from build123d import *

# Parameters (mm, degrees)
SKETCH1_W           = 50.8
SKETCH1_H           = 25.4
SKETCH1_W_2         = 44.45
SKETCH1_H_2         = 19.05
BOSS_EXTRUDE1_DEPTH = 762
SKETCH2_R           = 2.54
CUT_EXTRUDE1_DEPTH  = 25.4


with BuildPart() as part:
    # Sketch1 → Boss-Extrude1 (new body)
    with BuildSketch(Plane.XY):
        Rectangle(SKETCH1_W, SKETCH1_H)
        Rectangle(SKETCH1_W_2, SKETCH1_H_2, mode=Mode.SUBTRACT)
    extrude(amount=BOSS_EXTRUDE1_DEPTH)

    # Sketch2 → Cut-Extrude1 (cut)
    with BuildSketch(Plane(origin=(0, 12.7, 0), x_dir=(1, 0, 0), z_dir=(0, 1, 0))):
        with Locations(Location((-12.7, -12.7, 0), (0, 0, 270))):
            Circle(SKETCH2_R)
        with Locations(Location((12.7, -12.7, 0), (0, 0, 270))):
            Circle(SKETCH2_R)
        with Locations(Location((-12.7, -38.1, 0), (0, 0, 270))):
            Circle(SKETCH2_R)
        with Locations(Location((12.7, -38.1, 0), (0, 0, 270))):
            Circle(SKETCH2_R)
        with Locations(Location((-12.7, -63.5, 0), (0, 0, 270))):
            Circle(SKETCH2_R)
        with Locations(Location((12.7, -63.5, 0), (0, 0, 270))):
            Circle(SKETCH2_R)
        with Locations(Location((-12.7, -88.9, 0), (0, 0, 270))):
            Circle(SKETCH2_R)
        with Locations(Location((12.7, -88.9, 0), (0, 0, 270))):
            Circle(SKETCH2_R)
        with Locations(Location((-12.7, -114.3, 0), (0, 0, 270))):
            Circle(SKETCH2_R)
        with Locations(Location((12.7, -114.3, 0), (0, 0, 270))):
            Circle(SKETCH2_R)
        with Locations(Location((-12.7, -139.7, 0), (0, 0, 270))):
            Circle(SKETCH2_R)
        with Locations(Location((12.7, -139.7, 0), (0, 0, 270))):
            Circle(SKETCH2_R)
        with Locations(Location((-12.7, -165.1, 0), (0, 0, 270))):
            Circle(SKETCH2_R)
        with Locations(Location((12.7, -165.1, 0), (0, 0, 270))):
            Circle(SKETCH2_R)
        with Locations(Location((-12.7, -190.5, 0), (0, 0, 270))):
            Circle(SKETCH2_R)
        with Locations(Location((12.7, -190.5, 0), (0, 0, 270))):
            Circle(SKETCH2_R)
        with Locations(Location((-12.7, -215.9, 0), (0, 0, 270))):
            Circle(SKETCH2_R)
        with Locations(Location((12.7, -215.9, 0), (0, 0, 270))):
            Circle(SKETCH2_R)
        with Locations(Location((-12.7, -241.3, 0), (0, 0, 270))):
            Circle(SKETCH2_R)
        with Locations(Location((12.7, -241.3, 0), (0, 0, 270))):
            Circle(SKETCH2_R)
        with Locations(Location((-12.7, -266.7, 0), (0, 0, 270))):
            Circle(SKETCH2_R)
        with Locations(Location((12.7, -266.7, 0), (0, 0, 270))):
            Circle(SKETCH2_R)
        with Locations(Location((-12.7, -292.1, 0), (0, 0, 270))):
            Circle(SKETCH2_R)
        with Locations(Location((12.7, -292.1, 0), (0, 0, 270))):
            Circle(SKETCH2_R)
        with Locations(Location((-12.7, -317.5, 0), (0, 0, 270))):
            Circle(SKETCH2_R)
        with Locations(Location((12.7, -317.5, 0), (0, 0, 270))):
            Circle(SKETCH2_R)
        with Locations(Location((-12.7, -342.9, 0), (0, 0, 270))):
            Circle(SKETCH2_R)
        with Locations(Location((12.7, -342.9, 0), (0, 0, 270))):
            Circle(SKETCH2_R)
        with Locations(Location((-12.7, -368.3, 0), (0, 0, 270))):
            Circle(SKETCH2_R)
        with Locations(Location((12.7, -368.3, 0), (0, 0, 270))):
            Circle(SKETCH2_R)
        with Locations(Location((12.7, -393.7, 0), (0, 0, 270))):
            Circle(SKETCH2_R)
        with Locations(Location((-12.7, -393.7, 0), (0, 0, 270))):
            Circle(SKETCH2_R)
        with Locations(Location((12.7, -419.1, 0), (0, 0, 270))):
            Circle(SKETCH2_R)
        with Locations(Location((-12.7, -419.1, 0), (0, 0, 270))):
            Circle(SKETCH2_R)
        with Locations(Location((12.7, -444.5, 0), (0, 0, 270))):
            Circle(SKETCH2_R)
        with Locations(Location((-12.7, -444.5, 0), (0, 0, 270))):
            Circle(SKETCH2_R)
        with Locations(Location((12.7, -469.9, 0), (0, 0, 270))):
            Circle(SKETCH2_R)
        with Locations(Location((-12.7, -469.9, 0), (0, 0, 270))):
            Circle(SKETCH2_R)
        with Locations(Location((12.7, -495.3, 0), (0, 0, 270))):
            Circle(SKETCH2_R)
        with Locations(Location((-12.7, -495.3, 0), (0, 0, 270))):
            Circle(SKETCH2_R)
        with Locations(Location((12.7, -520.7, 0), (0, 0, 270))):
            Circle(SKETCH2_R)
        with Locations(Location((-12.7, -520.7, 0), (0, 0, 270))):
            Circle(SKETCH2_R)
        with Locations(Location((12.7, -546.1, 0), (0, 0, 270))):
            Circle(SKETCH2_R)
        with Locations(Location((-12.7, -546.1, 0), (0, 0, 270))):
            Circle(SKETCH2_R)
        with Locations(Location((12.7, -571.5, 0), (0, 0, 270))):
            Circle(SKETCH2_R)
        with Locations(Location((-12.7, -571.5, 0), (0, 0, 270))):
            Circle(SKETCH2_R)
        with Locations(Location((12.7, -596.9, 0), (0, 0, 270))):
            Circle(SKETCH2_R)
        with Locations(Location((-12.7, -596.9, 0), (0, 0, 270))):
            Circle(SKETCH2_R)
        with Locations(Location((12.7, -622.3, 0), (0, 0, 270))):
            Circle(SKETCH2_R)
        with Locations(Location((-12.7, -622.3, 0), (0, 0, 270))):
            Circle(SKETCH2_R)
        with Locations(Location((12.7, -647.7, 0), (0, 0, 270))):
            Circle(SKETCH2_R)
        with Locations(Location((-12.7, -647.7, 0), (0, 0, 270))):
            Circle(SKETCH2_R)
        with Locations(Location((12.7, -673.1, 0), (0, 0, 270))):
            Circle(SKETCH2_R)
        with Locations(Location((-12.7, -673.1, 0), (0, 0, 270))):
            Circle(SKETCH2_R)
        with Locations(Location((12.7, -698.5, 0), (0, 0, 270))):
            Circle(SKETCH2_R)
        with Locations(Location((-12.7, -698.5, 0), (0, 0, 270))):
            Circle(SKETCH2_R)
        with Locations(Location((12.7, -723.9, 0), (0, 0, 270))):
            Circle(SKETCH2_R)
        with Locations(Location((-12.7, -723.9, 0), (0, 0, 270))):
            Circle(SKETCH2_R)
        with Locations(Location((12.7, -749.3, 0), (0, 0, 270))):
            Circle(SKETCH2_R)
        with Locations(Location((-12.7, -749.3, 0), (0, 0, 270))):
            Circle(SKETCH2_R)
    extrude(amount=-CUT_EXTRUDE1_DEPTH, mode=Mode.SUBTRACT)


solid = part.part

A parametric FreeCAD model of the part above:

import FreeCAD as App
import Part
import Sketcher

V = App.Vector
Q = App.Units.Quantity

doc = App.newDocument("Part")
body = doc.addObject("PartDesign::Body", "Body")

sketch1 = body.newObject("Sketcher::SketchObject", "Sketch")
sketch1.AttachmentSupport = (doc.getObject("XY_Plane"), [""])
sketch1.MapMode = "FlatFace"
sketch1.addGeometry([
    Part.LineSegment(V(-25, 13, 0), V(-25, -13, 0)),
    Part.LineSegment(V(-25, -13, 0), V(25, -13, 0)),
    Part.LineSegment(V(25, -13, 0), V(25, 13, 0)),
    Part.LineSegment(V(25, 13, 0), V(-25, 13, 0)),
    Part.LineSegment(V(22, -10, 0), V(-22, -10, 0)),
    Part.LineSegment(V(-22, -10, 0), V(-22, 10, 0)),
    Part.LineSegment(V(-22, 10, 0), V(22, 10, 0)),
    Part.LineSegment(V(22, 10, 0), V(22, -10, 0)),
], False)
sketch1.addConstraint([
    Sketcher.Constraint("Coincident", 0, 2, 1, 1),
    Sketcher.Constraint("Coincident", 1, 2, 2, 1),
    Sketcher.Constraint("Coincident", 2, 2, 3, 1),
    Sketcher.Constraint("Coincident", 3, 2, 0, 1),
    Sketcher.Constraint("Coincident", 4, 2, 5, 1),
    Sketcher.Constraint("Coincident", 5, 2, 6, 1),
    Sketcher.Constraint("Coincident", 6, 2, 7, 1),
    Sketcher.Constraint("Coincident", 7, 2, 4, 1),
    Sketcher.Constraint("Vertical", 0),
    Sketcher.Constraint("Horizontal", 1),
    Sketcher.Constraint("Vertical", 2),
    Sketcher.Constraint("Horizontal", 3),
    Sketcher.Constraint("Horizontal", 4),
    Sketcher.Constraint("Vertical", 5),
    Sketcher.Constraint("Horizontal", 6),
    Sketcher.Constraint("Vertical", 7),
    Sketcher.Constraint("Symmetric", 0, 2, 2, 2, -1, 1),
    Sketcher.Constraint("Symmetric", 4, 2, 6, 2, -1, 1),
    Sketcher.Constraint("DistanceX", 1, 1, 1, 2, Q("2 in")),
    Sketcher.Constraint("DistanceY", 0, 2, 0, 1, Q("1 in")),
    Sketcher.Constraint("DistanceX", 4, 2, 4, 1, Q("1.75 in")),
    Sketcher.Constraint("DistanceY", 5, 1, 5, 2, Q("0.75 in")),
])
pad1 = body.newObject("PartDesign::Pad", "Pad")
pad1.Profile = sketch1
pad1.Length = Q("30 in")

sketch2 = body.newObject("Sketcher::SketchObject", "Sketch001")
sketch2.AttachmentSupport = (doc.getObject("XZ_Plane"), [""])
sketch2.MapMode = "FlatFace"
sketch2.AttachmentOffset = App.Placement(V(0, 0, -0.5 * 25.4), App.Rotation())
sketch2.addGeometry([
    Part.Circle(V(-12.7, 12.7, 0), V(0, 0, 1), 2.5),
    Part.Circle(V(12.7, 12.7, 0), V(0, 0, 1), 2.5),
    Part.Circle(V(-12.7, 38.1, 0), V(0, 0, 1), 2.5),
    Part.Circle(V(12.7, 38.1, 0), V(0, 0, 1), 2.5),
    Part.Circle(V(-12.7, 63.5, 0), V(0, 0, 1), 2.5),
    Part.Circle(V(12.7, 63.5, 0), V(0, 0, 1), 2.5),
    Part.Circle(V(-12.7, 88.9, 0), V(0, 0, 1), 2.5),
    Part.Circle(V(12.7, 88.9, 0), V(0, 0, 1), 2.5),
    Part.Circle(V(-12.7, 114.3, 0), V(0, 0, 1), 2.5),
    Part.Circle(V(12.7, 114.3, 0), V(0, 0, 1), 2.5),
    Part.Circle(V(-12.7, 139.7, 0), V(0, 0, 1), 2.5),
    Part.Circle(V(12.7, 139.7, 0), V(0, 0, 1), 2.5),
    Part.Circle(V(-12.7, 165.1, 0), V(0, 0, 1), 2.5),
    Part.Circle(V(12.7, 165.1, 0), V(0, 0, 1), 2.5),
    Part.Circle(V(-12.7, 190.5, 0), V(0, 0, 1), 2.5),
    Part.Circle(V(12.7, 190.5, 0), V(0, 0, 1), 2.5),
    Part.Circle(V(-12.7, 215.9, 0), V(0, 0, 1), 2.5),
    Part.Circle(V(12.7, 215.9, 0), V(0, 0, 1), 2.5),
    Part.Circle(V(-12.7, 241.3, 0), V(0, 0, 1), 2.5),
    Part.Circle(V(12.7, 241.3, 0), V(0, 0, 1), 2.5),
    Part.Circle(V(-12.7, 266.7, 0), V(0, 0, 1), 2.5),
    Part.Circle(V(12.7, 266.7, 0), V(0, 0, 1), 2.5),
    Part.Circle(V(-12.7, 292.1, 0), V(0, 0, 1), 2.5),
    Part.Circle(V(12.7, 292.1, 0), V(0, 0, 1), 2.5),
    Part.Circle(V(-12.7, 317.5, 0), V(0, 0, 1), 2.5),
    Part.Circle(V(12.7, 317.5, 0), V(0, 0, 1), 2.5),
    Part.Circle(V(-12.7, 342.9, 0), V(0, 0, 1), 2.5),
    Part.Circle(V(12.7, 342.9, 0), V(0, 0, 1), 2.5),
    Part.Circle(V(-12.7, 368.3, 0), V(0, 0, 1), 2.5),
    Part.Circle(V(12.7, 368.3, 0), V(0, 0, 1), 2.5),
    Part.Circle(V(12.7, 393.7, 0), V(0, 0, 1), 2.5),
    Part.Circle(V(-12.7, 393.7, 0), V(0, 0, 1), 2.5),
    Part.Circle(V(12.7, 419.1, 0), V(0, 0, 1), 2.5),
    Part.Circle(V(-12.7, 419.1, 0), V(0, 0, 1), 2.5),
    Part.Circle(V(12.7, 444.5, 0), V(0, 0, 1), 2.5),
    Part.Circle(V(-12.7, 444.5, 0), V(0, 0, 1), 2.5),
    Part.Circle(V(12.7, 469.9, 0), V(0, 0, 1), 2.5),
    Part.Circle(V(-12.7, 469.9, 0), V(0, 0, 1), 2.5),
    Part.Circle(V(12.7, 495.3, 0), V(0, 0, 1), 2.5),
    Part.Circle(V(-12.7, 495.3, 0), V(0, 0, 1), 2.5),
    Part.Circle(V(12.7, 520.7, 0), V(0, 0, 1), 2.5),
    Part.Circle(V(-12.7, 520.7, 0), V(0, 0, 1), 2.5),
    Part.Circle(V(12.7, 546.1, 0), V(0, 0, 1), 2.5),
    Part.Circle(V(-12.7, 546.1, 0), V(0, 0, 1), 2.5),
    Part.Circle(V(12.7, 571.5, 0), V(0, 0, 1), 2.5),
    Part.Circle(V(-12.7, 571.5, 0), V(0, 0, 1), 2.5),
    Part.Circle(V(12.7, 596.9, 0), V(0, 0, 1), 2.5),
    Part.Circle(V(-12.7, 596.9, 0), V(0, 0, 1), 2.5),
    Part.Circle(V(12.7, 622.3, 0), V(0, 0, 1), 2.5),
    Part.Circle(V(-12.7, 622.3, 0), V(0, 0, 1), 2.5),
    Part.Circle(V(12.7, 647.7, 0), V(0, 0, 1), 2.5),
    Part.Circle(V(-12.7, 647.7, 0), V(0, 0, 1), 2.5),
    Part.Circle(V(12.7, 673.1, 0), V(0, 0, 1), 2.5),
    Part.Circle(V(-12.7, 673.1, 0), V(0, 0, 1), 2.5),
    Part.Circle(V(12.7, 698.5, 0), V(0, 0, 1), 2.5),
    Part.Circle(V(-12.7, 698.5, 0), V(0, 0, 1), 2.5),
    Part.Circle(V(12.7, 723.9, 0), V(0, 0, 1), 2.5),
    Part.Circle(V(-12.7, 723.9, 0), V(0, 0, 1), 2.5),
    Part.Circle(V(12.7, 749.3, 0), V(0, 0, 1), 2.5),
    Part.Circle(V(-12.7, 749.3, 0), V(0, 0, 1), 2.5),
], False)
sketch2.addConstraint([
    Sketcher.Constraint("Equal", 0, 1),
    Sketcher.Constraint("Equal", 1, 2),
    Sketcher.Constraint("Equal", 2, 3),
    Sketcher.Constraint("Equal", 3, 4),
    Sketcher.Constraint("Equal", 4, 5),
    Sketcher.Constraint("Equal", 5, 6),
    Sketcher.Constraint("Equal", 6, 7),
    Sketcher.Constraint("Equal", 7, 8),
    Sketcher.Constraint("Equal", 8, 9),
    Sketcher.Constraint("Equal", 9, 10),
    Sketcher.Constraint("Equal", 10, 11),
    Sketcher.Constraint("Equal", 11, 12),
    Sketcher.Constraint("Equal", 12, 13),
    Sketcher.Constraint("Equal", 13, 14),
    Sketcher.Constraint("Equal", 14, 15),
    Sketcher.Constraint("Equal", 15, 16),
    Sketcher.Constraint("Equal", 16, 17),
    Sketcher.Constraint("Equal", 17, 18),
    Sketcher.Constraint("Equal", 18, 19),
    Sketcher.Constraint("Equal", 19, 20),
    Sketcher.Constraint("Equal", 20, 21),
    Sketcher.Constraint("Equal", 21, 22),
    Sketcher.Constraint("Equal", 22, 23),
    Sketcher.Constraint("Equal", 23, 24),
    Sketcher.Constraint("Equal", 24, 25),
    Sketcher.Constraint("Equal", 25, 26),
    Sketcher.Constraint("Equal", 26, 27),
    Sketcher.Constraint("Equal", 27, 28),
    Sketcher.Constraint("Equal", 28, 29),
    Sketcher.Constraint("Equal", 29, 30),
    Sketcher.Constraint("Equal", 30, 31),
    Sketcher.Constraint("Equal", 31, 32),
    Sketcher.Constraint("Equal", 32, 33),
    Sketcher.Constraint("Equal", 33, 34),
    Sketcher.Constraint("Equal", 34, 35),
    Sketcher.Constraint("Equal", 35, 36),
    Sketcher.Constraint("Equal", 36, 37),
    Sketcher.Constraint("Equal", 37, 38),
    Sketcher.Constraint("Equal", 38, 39),
    Sketcher.Constraint("Equal", 39, 40),
    Sketcher.Constraint("Equal", 40, 41),
    Sketcher.Constraint("Equal", 41, 42),
    Sketcher.Constraint("Equal", 42, 43),
    Sketcher.Constraint("Equal", 43, 44),
    Sketcher.Constraint("Equal", 44, 45),
    Sketcher.Constraint("Equal", 45, 46),
    Sketcher.Constraint("Equal", 46, 47),
    Sketcher.Constraint("Equal", 47, 48),
    Sketcher.Constraint("Equal", 48, 49),
    Sketcher.Constraint("Equal", 49, 50),
    Sketcher.Constraint("Equal", 50, 51),
    Sketcher.Constraint("Equal", 51, 52),
    Sketcher.Constraint("Equal", 52, 53),
    Sketcher.Constraint("Equal", 53, 54),
    Sketcher.Constraint("Equal", 54, 55),
    Sketcher.Constraint("Equal", 55, 56),
    Sketcher.Constraint("Equal", 56, 57),
    Sketcher.Constraint("Equal", 57, 58),
    Sketcher.Constraint("Equal", 58, 59),
    Sketcher.Constraint("Symmetric", 0, 3, 1, 3, -2),
    Sketcher.Constraint("Symmetric", 2, 3, 3, 3, -2),
    Sketcher.Constraint("Symmetric", 4, 3, 5, 3, -2),
    Sketcher.Constraint("Symmetric", 6, 3, 7, 3, -2),
    Sketcher.Constraint("Symmetric", 8, 3, 9, 3, -2),
    Sketcher.Constraint("Symmetric", 10, 3, 11, 3, -2),
    Sketcher.Constraint("Symmetric", 12, 3, 13, 3, -2),
    Sketcher.Constraint("Symmetric", 14, 3, 15, 3, -2),
    Sketcher.Constraint("Symmetric", 16, 3, 17, 3, -2),
    Sketcher.Constraint("Symmetric", 18, 3, 19, 3, -2),
    Sketcher.Constraint("Symmetric", 20, 3, 21, 3, -2),
    Sketcher.Constraint("Symmetric", 22, 3, 23, 3, -2),
    Sketcher.Constraint("Symmetric", 24, 3, 25, 3, -2),
    Sketcher.Constraint("Symmetric", 26, 3, 27, 3, -2),
    Sketcher.Constraint("Symmetric", 28, 3, 29, 3, -2),
    Sketcher.Constraint("Symmetric", 30, 3, 31, 3, -2),
    Sketcher.Constraint("Symmetric", 32, 3, 33, 3, -2),
    Sketcher.Constraint("Symmetric", 34, 3, 35, 3, -2),
    Sketcher.Constraint("Symmetric", 36, 3, 37, 3, -2),
    Sketcher.Constraint("Symmetric", 38, 3, 39, 3, -2),
    Sketcher.Constraint("Symmetric", 40, 3, 41, 3, -2),
    Sketcher.Constraint("Symmetric", 42, 3, 43, 3, -2),
    Sketcher.Constraint("Symmetric", 44, 3, 45, 3, -2),
    Sketcher.Constraint("Symmetric", 46, 3, 47, 3, -2),
    Sketcher.Constraint("Symmetric", 48, 3, 49, 3, -2),
    Sketcher.Constraint("Symmetric", 50, 3, 51, 3, -2),
    Sketcher.Constraint("Symmetric", 52, 3, 53, 3, -2),
    Sketcher.Constraint("Symmetric", 54, 3, 55, 3, -2),
    Sketcher.Constraint("Symmetric", 56, 3, 57, 3, -2),
    Sketcher.Constraint("Symmetric", 58, 3, 59, 3, -2),
    Sketcher.Constraint("Vertical", 0, 3, 2, 3),
    Sketcher.Constraint("Vertical", 2, 3, 4, 3),
    Sketcher.Constraint("Vertical", 4, 3, 6, 3),
    Sketcher.Constraint("Vertical", 6, 3, 8, 3),
    Sketcher.Constraint("Vertical", 8, 3, 10, 3),
    Sketcher.Constraint("Vertical", 10, 3, 12, 3),
    Sketcher.Constraint("Vertical", 12, 3, 14, 3),
    Sketcher.Constraint("Vertical", 14, 3, 16, 3),
    Sketcher.Constraint("Vertical", 16, 3, 18, 3),
    Sketcher.Constraint("Vertical", 18, 3, 20, 3),
    Sketcher.Constraint("Vertical", 20, 3, 22, 3),
    Sketcher.Constraint("Vertical", 22, 3, 24, 3),
    Sketcher.Constraint("Vertical", 24, 3, 26, 3),
    Sketcher.Constraint("Vertical", 26, 3, 28, 3),
    Sketcher.Constraint("Vertical", 29, 3, 30, 3),
    Sketcher.Constraint("Vertical", 30, 3, 32, 3),
    Sketcher.Constraint("Vertical", 32, 3, 34, 3),
    Sketcher.Constraint("Vertical", 34, 3, 36, 3),
    Sketcher.Constraint("Vertical", 36, 3, 38, 3),
    Sketcher.Constraint("Vertical", 38, 3, 40, 3),
    Sketcher.Constraint("Vertical", 40, 3, 42, 3),
    Sketcher.Constraint("Vertical", 42, 3, 44, 3),
    Sketcher.Constraint("Vertical", 44, 3, 46, 3),
    Sketcher.Constraint("Vertical", 46, 3, 48, 3),
    Sketcher.Constraint("Vertical", 48, 3, 50, 3),
    Sketcher.Constraint("Vertical", 50, 3, 52, 3),
    Sketcher.Constraint("Vertical", 52, 3, 54, 3),
    Sketcher.Constraint("Vertical", 54, 3, 56, 3),
    Sketcher.Constraint("Vertical", 56, 3, 58, 3),
    Sketcher.Constraint("Diameter", 0, Q("0.2 in")),
    Sketcher.Constraint("DistanceX", 0, 3, 1, 3, Q("1 in")),
    Sketcher.Constraint("DistanceY", 0, 3, 2, 3, Q("1 in")),
    Sketcher.Constraint("DistanceY", 2, 3, 4, 3, Q("1 in")),
    Sketcher.Constraint("DistanceY", 4, 3, 6, 3, Q("1 in")),
    Sketcher.Constraint("DistanceY", 6, 3, 8, 3, Q("1 in")),
    Sketcher.Constraint("DistanceY", 8, 3, 10, 3, Q("1 in")),
    Sketcher.Constraint("DistanceY", 10, 3, 12, 3, Q("1 in")),
    Sketcher.Constraint("DistanceY", 12, 3, 14, 3, Q("1 in")),
    Sketcher.Constraint("DistanceY", 14, 3, 16, 3, Q("1 in")),
    Sketcher.Constraint("DistanceY", 16, 3, 18, 3, Q("1 in")),
    Sketcher.Constraint("DistanceY", 18, 3, 20, 3, Q("1 in")),
    Sketcher.Constraint("DistanceY", 20, 3, 22, 3, Q("1 in")),
    Sketcher.Constraint("DistanceY", 22, 3, 24, 3, Q("1 in")),
    Sketcher.Constraint("DistanceY", 24, 3, 26, 3, Q("1 in")),
    Sketcher.Constraint("DistanceY", 26, 3, 28, 3, Q("1 in")),
    Sketcher.Constraint("DistanceY", 29, 3, 30, 3, Q("1 in")),
    Sketcher.Constraint("DistanceY", 30, 3, 32, 3, Q("1 in")),
    Sketcher.Constraint("DistanceY", 32, 3, 34, 3, Q("1 in")),
    Sketcher.Constraint("DistanceY", 34, 3, 36, 3, Q("1 in")),
    Sketcher.Constraint("DistanceY", 36, 3, 38, 3, Q("1 in")),
    Sketcher.Constraint("DistanceY", 38, 3, 40, 3, Q("1 in")),
    Sketcher.Constraint("DistanceY", 40, 3, 42, 3, Q("1 in")),
    Sketcher.Constraint("DistanceY", 42, 3, 44, 3, Q("1 in")),
    Sketcher.Constraint("DistanceY", 44, 3, 46, 3, Q("1 in")),
    Sketcher.Constraint("DistanceY", 46, 3, 48, 3, Q("1 in")),
    Sketcher.Constraint("DistanceY", 48, 3, 50, 3, Q("1 in")),
    Sketcher.Constraint("DistanceY", 50, 3, 52, 3, Q("1 in")),
    Sketcher.Constraint("DistanceY", 52, 3, 54, 3, Q("1 in")),
    Sketcher.Constraint("DistanceY", 54, 3, 56, 3, Q("1 in")),
    Sketcher.Constraint("DistanceY", 56, 3, 58, 3, Q("1 in")),
    Sketcher.Constraint("DistanceY", -1, 1, 0, 3, Q("0.5 in")),
])
pocket1 = body.newObject("PartDesign::Pocket", "Pocket")
pocket1.Profile = sketch2
pocket1.Length = Q("1 in")
pocket1.Reversed = True

doc.recompute()
